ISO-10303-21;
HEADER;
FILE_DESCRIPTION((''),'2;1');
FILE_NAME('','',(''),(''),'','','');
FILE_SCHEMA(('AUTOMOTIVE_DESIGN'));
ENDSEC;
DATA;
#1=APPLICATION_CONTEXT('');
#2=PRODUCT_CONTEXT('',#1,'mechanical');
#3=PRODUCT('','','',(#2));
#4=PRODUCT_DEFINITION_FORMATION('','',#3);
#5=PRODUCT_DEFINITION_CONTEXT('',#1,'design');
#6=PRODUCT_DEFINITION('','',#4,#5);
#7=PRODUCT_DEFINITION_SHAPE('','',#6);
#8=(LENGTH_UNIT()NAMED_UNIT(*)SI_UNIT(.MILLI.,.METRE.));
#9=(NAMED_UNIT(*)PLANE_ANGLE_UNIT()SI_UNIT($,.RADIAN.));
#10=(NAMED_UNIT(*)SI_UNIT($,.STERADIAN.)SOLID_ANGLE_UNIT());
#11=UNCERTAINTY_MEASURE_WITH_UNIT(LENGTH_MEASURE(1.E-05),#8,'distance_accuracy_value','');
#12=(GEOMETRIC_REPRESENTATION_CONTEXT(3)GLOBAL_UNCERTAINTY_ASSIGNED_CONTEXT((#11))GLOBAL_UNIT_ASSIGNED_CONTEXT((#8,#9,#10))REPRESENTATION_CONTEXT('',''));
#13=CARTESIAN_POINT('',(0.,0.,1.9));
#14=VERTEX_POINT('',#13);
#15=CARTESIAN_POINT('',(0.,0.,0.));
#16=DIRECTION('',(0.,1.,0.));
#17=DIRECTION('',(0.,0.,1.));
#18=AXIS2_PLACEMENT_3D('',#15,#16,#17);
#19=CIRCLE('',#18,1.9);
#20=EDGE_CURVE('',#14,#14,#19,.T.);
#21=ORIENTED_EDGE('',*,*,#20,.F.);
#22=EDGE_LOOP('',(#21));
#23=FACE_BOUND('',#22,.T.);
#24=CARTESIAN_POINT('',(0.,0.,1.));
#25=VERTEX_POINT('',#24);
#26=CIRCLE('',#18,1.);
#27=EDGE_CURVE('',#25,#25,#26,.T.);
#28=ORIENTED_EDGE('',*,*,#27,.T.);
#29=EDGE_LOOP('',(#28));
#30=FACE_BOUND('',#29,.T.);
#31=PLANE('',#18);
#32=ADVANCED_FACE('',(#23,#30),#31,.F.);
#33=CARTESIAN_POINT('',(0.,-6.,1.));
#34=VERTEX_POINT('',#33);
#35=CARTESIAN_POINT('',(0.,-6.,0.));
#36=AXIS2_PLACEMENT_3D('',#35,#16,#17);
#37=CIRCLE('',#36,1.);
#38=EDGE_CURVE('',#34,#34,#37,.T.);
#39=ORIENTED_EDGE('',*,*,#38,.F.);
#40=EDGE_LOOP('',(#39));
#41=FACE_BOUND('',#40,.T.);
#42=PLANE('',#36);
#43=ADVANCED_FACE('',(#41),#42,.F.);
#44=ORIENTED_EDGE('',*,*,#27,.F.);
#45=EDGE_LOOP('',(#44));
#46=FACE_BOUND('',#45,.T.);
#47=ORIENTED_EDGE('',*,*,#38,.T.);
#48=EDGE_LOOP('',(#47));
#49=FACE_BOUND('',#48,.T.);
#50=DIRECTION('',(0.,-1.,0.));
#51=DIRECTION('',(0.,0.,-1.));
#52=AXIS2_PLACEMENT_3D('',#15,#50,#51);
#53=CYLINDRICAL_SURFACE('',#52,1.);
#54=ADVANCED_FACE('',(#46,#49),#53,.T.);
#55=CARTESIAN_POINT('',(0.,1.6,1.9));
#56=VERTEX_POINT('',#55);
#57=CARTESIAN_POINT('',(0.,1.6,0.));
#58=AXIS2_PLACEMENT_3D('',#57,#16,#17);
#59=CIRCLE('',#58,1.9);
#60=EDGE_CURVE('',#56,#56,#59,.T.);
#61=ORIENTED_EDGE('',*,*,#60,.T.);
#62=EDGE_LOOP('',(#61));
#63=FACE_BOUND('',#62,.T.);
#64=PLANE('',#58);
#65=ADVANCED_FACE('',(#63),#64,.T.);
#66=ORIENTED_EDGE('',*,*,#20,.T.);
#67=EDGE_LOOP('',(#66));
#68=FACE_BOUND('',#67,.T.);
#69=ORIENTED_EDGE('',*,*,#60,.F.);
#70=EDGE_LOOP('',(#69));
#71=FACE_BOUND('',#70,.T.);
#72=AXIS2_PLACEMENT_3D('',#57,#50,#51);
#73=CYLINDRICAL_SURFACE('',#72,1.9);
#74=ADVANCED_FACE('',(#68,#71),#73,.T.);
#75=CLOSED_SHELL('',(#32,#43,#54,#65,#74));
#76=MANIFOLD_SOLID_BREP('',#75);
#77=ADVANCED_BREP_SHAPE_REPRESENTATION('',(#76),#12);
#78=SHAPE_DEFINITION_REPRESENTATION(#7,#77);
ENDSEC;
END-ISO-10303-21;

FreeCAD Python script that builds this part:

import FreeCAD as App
import Part
import Sketcher

doc = App.newDocument("Part")
params = doc.addObject("Spreadsheet::Sheet", "Params")
for row, (alias, value) in enumerate([
    ("sketch1_diameter", "3.8 mm"),
    ("pad1_length", "1.6 mm"),
    ("sketch2_diameter", "2 mm"),
    ("pad2_length", "6 mm"),
], start=1):
    params.set(f"A{row}", alias)
    params.set(f"B{row}", "=" + value)
    params.setAlias(f"B{row}", alias)

body = doc.addObject("PartDesign::Body", "Body")

# Sketch on XZ plane
sketch1 = body.newObject("Sketcher::SketchObject", "Sketch")
sketch1.AttachmentSupport = (doc.getObject("XZ_Plane"), [""])
sketch1.MapMode = "FlatFace"
sketch1.addGeometry(Part.Circle(App.Vector(0, 0, 0), App.Vector(0, 0, 1), 1.9), False)
sketch1.addConstraint(Sketcher.Constraint("Coincident", 0, 3, -1, 1))
sketch1.addConstraint(Sketcher.Constraint("Diameter", 0, 3.8))
sketch1.setExpression("Constraints[1]", "Params.sketch1_diameter")
pad1 = body.newObject("PartDesign::Pad", "Pad")
pad1.Profile = sketch1
pad1.setExpression("Length", "Params.pad1_length")
pad1.Reversed = True

# Sketch on XZ plane
sketch2 = body.newObject("Sketcher::SketchObject", "Sketch001")
sketch2.AttachmentSupport = (doc.getObject("XZ_Plane"), [""])
sketch2.MapMode = "FlatFace"
sketch2.AttachmentOffset = App.Placement(App.Vector(0, 0, 6), App.Rotation())
sketch2.addGeometry(Part.Circle(App.Vector(0, 0, 0), App.Vector(0, 0, 1), 1), False)
sketch2.addConstraint(Sketcher.Constraint("Coincident", 0, 3, -1, 1))
sketch2.addConstraint(Sketcher.Constraint("Diameter", 0, 2.0))
sketch2.setExpression("Constraints[1]", "Params.sketch2_diameter")
pad2 = body.newObject("PartDesign::Pad", "Pad001")
pad2.Profile = sketch2
pad2.setExpression("Length", "Params.pad2_length")
pad2.Reversed = True

doc.recompute()
